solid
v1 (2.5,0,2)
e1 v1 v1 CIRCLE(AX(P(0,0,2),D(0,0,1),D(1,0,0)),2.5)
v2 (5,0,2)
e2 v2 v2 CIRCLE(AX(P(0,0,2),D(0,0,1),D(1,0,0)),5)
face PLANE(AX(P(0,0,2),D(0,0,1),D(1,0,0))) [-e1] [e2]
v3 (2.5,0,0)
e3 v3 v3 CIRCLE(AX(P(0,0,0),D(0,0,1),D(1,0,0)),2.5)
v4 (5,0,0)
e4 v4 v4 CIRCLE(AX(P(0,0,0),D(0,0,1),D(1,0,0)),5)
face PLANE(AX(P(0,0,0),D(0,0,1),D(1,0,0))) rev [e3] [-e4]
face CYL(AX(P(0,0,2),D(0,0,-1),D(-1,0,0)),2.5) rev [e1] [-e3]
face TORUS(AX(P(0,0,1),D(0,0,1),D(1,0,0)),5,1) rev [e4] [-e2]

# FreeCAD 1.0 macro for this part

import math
import FreeCAD as App
import Part
import Sketcher

V = App.Vector
Q = App.Units.Quantity

doc = App.newDocument("Part")
body = doc.addObject("PartDesign::Body", "Body")

sketch1 = body.newObject("Sketcher::SketchObject", "Sketch")
sketch1.AttachmentSupport = (doc.getObject("XY_Plane"), [""])
sketch1.MapMode = "FlatFace"
sketch1.addGeometry(Part.Circle(V(0, 0, 0), V(0, 0, 1), 5), False)
sketch1.addGeometry(Part.Circle(V(0, 0, 0), V(0, 0, 1), 2.5), False)
sketch1.addConstraint(Sketcher.Constraint("Coincident", 0, 3, -1, 1))
sketch1.addConstraint(Sketcher.Constraint("Coincident", 1, 3, -1, 1))
sketch1.addConstraint(Sketcher.Constraint("Diameter", 0, Q("10 mm")))
sketch1.addConstraint(Sketcher.Constraint("Diameter", 1, Q("5 mm")))
pad1 = body.newObject("PartDesign::Pad", "Pad")
pad1.Profile = sketch1
pad1.Length = 2

sketch2 = body.newObject("Sketcher::SketchObject", "Sketch001")
sketch2.AttachmentSupport = (doc.getObject("YZ_Plane"), [""])
sketch2.MapMode = "FlatFace"
sketch2.addGeometry(Part.LineSegment(V(5, 0, 0), V(5, 2, 0)), False)
sketch2.addGeometry(Part.ArcOfCircle(Part.Circle(V(5, 1, 0), V(0, 0, 1), 1), math.radians(90), math.radians(270)), False)
sketch2.addConstraint(Sketcher.Constraint("Coincident", 0, 1, 1, 2))
sketch2.addConstraint(Sketcher.Constraint("Coincident", 1, 1, 0, 2))
sketch2.addConstraint(Sketcher.Constraint("Vertical", 0))
sketch2.addConstraint(Sketcher.Constraint("PointOnObject", 0, 1, -1))
sketch2.addConstraint(Sketcher.Constraint("Vertical", 1, 3, 0, 1))
sketch2.addConstraint(Sketcher.Constraint("Radius", 1, Q("1 mm")))
sketch2.addConstraint(Sketcher.Constraint("DistanceX", -1, 1, 1, 3, Q("5 mm")))
groove = body.newObject("PartDesign::Groove", "Groove")
groove.Profile = sketch2
groove.ReferenceAxis = (sketch2, ["V_Axis"])
groove.Angle = 360

doc.recompute()
